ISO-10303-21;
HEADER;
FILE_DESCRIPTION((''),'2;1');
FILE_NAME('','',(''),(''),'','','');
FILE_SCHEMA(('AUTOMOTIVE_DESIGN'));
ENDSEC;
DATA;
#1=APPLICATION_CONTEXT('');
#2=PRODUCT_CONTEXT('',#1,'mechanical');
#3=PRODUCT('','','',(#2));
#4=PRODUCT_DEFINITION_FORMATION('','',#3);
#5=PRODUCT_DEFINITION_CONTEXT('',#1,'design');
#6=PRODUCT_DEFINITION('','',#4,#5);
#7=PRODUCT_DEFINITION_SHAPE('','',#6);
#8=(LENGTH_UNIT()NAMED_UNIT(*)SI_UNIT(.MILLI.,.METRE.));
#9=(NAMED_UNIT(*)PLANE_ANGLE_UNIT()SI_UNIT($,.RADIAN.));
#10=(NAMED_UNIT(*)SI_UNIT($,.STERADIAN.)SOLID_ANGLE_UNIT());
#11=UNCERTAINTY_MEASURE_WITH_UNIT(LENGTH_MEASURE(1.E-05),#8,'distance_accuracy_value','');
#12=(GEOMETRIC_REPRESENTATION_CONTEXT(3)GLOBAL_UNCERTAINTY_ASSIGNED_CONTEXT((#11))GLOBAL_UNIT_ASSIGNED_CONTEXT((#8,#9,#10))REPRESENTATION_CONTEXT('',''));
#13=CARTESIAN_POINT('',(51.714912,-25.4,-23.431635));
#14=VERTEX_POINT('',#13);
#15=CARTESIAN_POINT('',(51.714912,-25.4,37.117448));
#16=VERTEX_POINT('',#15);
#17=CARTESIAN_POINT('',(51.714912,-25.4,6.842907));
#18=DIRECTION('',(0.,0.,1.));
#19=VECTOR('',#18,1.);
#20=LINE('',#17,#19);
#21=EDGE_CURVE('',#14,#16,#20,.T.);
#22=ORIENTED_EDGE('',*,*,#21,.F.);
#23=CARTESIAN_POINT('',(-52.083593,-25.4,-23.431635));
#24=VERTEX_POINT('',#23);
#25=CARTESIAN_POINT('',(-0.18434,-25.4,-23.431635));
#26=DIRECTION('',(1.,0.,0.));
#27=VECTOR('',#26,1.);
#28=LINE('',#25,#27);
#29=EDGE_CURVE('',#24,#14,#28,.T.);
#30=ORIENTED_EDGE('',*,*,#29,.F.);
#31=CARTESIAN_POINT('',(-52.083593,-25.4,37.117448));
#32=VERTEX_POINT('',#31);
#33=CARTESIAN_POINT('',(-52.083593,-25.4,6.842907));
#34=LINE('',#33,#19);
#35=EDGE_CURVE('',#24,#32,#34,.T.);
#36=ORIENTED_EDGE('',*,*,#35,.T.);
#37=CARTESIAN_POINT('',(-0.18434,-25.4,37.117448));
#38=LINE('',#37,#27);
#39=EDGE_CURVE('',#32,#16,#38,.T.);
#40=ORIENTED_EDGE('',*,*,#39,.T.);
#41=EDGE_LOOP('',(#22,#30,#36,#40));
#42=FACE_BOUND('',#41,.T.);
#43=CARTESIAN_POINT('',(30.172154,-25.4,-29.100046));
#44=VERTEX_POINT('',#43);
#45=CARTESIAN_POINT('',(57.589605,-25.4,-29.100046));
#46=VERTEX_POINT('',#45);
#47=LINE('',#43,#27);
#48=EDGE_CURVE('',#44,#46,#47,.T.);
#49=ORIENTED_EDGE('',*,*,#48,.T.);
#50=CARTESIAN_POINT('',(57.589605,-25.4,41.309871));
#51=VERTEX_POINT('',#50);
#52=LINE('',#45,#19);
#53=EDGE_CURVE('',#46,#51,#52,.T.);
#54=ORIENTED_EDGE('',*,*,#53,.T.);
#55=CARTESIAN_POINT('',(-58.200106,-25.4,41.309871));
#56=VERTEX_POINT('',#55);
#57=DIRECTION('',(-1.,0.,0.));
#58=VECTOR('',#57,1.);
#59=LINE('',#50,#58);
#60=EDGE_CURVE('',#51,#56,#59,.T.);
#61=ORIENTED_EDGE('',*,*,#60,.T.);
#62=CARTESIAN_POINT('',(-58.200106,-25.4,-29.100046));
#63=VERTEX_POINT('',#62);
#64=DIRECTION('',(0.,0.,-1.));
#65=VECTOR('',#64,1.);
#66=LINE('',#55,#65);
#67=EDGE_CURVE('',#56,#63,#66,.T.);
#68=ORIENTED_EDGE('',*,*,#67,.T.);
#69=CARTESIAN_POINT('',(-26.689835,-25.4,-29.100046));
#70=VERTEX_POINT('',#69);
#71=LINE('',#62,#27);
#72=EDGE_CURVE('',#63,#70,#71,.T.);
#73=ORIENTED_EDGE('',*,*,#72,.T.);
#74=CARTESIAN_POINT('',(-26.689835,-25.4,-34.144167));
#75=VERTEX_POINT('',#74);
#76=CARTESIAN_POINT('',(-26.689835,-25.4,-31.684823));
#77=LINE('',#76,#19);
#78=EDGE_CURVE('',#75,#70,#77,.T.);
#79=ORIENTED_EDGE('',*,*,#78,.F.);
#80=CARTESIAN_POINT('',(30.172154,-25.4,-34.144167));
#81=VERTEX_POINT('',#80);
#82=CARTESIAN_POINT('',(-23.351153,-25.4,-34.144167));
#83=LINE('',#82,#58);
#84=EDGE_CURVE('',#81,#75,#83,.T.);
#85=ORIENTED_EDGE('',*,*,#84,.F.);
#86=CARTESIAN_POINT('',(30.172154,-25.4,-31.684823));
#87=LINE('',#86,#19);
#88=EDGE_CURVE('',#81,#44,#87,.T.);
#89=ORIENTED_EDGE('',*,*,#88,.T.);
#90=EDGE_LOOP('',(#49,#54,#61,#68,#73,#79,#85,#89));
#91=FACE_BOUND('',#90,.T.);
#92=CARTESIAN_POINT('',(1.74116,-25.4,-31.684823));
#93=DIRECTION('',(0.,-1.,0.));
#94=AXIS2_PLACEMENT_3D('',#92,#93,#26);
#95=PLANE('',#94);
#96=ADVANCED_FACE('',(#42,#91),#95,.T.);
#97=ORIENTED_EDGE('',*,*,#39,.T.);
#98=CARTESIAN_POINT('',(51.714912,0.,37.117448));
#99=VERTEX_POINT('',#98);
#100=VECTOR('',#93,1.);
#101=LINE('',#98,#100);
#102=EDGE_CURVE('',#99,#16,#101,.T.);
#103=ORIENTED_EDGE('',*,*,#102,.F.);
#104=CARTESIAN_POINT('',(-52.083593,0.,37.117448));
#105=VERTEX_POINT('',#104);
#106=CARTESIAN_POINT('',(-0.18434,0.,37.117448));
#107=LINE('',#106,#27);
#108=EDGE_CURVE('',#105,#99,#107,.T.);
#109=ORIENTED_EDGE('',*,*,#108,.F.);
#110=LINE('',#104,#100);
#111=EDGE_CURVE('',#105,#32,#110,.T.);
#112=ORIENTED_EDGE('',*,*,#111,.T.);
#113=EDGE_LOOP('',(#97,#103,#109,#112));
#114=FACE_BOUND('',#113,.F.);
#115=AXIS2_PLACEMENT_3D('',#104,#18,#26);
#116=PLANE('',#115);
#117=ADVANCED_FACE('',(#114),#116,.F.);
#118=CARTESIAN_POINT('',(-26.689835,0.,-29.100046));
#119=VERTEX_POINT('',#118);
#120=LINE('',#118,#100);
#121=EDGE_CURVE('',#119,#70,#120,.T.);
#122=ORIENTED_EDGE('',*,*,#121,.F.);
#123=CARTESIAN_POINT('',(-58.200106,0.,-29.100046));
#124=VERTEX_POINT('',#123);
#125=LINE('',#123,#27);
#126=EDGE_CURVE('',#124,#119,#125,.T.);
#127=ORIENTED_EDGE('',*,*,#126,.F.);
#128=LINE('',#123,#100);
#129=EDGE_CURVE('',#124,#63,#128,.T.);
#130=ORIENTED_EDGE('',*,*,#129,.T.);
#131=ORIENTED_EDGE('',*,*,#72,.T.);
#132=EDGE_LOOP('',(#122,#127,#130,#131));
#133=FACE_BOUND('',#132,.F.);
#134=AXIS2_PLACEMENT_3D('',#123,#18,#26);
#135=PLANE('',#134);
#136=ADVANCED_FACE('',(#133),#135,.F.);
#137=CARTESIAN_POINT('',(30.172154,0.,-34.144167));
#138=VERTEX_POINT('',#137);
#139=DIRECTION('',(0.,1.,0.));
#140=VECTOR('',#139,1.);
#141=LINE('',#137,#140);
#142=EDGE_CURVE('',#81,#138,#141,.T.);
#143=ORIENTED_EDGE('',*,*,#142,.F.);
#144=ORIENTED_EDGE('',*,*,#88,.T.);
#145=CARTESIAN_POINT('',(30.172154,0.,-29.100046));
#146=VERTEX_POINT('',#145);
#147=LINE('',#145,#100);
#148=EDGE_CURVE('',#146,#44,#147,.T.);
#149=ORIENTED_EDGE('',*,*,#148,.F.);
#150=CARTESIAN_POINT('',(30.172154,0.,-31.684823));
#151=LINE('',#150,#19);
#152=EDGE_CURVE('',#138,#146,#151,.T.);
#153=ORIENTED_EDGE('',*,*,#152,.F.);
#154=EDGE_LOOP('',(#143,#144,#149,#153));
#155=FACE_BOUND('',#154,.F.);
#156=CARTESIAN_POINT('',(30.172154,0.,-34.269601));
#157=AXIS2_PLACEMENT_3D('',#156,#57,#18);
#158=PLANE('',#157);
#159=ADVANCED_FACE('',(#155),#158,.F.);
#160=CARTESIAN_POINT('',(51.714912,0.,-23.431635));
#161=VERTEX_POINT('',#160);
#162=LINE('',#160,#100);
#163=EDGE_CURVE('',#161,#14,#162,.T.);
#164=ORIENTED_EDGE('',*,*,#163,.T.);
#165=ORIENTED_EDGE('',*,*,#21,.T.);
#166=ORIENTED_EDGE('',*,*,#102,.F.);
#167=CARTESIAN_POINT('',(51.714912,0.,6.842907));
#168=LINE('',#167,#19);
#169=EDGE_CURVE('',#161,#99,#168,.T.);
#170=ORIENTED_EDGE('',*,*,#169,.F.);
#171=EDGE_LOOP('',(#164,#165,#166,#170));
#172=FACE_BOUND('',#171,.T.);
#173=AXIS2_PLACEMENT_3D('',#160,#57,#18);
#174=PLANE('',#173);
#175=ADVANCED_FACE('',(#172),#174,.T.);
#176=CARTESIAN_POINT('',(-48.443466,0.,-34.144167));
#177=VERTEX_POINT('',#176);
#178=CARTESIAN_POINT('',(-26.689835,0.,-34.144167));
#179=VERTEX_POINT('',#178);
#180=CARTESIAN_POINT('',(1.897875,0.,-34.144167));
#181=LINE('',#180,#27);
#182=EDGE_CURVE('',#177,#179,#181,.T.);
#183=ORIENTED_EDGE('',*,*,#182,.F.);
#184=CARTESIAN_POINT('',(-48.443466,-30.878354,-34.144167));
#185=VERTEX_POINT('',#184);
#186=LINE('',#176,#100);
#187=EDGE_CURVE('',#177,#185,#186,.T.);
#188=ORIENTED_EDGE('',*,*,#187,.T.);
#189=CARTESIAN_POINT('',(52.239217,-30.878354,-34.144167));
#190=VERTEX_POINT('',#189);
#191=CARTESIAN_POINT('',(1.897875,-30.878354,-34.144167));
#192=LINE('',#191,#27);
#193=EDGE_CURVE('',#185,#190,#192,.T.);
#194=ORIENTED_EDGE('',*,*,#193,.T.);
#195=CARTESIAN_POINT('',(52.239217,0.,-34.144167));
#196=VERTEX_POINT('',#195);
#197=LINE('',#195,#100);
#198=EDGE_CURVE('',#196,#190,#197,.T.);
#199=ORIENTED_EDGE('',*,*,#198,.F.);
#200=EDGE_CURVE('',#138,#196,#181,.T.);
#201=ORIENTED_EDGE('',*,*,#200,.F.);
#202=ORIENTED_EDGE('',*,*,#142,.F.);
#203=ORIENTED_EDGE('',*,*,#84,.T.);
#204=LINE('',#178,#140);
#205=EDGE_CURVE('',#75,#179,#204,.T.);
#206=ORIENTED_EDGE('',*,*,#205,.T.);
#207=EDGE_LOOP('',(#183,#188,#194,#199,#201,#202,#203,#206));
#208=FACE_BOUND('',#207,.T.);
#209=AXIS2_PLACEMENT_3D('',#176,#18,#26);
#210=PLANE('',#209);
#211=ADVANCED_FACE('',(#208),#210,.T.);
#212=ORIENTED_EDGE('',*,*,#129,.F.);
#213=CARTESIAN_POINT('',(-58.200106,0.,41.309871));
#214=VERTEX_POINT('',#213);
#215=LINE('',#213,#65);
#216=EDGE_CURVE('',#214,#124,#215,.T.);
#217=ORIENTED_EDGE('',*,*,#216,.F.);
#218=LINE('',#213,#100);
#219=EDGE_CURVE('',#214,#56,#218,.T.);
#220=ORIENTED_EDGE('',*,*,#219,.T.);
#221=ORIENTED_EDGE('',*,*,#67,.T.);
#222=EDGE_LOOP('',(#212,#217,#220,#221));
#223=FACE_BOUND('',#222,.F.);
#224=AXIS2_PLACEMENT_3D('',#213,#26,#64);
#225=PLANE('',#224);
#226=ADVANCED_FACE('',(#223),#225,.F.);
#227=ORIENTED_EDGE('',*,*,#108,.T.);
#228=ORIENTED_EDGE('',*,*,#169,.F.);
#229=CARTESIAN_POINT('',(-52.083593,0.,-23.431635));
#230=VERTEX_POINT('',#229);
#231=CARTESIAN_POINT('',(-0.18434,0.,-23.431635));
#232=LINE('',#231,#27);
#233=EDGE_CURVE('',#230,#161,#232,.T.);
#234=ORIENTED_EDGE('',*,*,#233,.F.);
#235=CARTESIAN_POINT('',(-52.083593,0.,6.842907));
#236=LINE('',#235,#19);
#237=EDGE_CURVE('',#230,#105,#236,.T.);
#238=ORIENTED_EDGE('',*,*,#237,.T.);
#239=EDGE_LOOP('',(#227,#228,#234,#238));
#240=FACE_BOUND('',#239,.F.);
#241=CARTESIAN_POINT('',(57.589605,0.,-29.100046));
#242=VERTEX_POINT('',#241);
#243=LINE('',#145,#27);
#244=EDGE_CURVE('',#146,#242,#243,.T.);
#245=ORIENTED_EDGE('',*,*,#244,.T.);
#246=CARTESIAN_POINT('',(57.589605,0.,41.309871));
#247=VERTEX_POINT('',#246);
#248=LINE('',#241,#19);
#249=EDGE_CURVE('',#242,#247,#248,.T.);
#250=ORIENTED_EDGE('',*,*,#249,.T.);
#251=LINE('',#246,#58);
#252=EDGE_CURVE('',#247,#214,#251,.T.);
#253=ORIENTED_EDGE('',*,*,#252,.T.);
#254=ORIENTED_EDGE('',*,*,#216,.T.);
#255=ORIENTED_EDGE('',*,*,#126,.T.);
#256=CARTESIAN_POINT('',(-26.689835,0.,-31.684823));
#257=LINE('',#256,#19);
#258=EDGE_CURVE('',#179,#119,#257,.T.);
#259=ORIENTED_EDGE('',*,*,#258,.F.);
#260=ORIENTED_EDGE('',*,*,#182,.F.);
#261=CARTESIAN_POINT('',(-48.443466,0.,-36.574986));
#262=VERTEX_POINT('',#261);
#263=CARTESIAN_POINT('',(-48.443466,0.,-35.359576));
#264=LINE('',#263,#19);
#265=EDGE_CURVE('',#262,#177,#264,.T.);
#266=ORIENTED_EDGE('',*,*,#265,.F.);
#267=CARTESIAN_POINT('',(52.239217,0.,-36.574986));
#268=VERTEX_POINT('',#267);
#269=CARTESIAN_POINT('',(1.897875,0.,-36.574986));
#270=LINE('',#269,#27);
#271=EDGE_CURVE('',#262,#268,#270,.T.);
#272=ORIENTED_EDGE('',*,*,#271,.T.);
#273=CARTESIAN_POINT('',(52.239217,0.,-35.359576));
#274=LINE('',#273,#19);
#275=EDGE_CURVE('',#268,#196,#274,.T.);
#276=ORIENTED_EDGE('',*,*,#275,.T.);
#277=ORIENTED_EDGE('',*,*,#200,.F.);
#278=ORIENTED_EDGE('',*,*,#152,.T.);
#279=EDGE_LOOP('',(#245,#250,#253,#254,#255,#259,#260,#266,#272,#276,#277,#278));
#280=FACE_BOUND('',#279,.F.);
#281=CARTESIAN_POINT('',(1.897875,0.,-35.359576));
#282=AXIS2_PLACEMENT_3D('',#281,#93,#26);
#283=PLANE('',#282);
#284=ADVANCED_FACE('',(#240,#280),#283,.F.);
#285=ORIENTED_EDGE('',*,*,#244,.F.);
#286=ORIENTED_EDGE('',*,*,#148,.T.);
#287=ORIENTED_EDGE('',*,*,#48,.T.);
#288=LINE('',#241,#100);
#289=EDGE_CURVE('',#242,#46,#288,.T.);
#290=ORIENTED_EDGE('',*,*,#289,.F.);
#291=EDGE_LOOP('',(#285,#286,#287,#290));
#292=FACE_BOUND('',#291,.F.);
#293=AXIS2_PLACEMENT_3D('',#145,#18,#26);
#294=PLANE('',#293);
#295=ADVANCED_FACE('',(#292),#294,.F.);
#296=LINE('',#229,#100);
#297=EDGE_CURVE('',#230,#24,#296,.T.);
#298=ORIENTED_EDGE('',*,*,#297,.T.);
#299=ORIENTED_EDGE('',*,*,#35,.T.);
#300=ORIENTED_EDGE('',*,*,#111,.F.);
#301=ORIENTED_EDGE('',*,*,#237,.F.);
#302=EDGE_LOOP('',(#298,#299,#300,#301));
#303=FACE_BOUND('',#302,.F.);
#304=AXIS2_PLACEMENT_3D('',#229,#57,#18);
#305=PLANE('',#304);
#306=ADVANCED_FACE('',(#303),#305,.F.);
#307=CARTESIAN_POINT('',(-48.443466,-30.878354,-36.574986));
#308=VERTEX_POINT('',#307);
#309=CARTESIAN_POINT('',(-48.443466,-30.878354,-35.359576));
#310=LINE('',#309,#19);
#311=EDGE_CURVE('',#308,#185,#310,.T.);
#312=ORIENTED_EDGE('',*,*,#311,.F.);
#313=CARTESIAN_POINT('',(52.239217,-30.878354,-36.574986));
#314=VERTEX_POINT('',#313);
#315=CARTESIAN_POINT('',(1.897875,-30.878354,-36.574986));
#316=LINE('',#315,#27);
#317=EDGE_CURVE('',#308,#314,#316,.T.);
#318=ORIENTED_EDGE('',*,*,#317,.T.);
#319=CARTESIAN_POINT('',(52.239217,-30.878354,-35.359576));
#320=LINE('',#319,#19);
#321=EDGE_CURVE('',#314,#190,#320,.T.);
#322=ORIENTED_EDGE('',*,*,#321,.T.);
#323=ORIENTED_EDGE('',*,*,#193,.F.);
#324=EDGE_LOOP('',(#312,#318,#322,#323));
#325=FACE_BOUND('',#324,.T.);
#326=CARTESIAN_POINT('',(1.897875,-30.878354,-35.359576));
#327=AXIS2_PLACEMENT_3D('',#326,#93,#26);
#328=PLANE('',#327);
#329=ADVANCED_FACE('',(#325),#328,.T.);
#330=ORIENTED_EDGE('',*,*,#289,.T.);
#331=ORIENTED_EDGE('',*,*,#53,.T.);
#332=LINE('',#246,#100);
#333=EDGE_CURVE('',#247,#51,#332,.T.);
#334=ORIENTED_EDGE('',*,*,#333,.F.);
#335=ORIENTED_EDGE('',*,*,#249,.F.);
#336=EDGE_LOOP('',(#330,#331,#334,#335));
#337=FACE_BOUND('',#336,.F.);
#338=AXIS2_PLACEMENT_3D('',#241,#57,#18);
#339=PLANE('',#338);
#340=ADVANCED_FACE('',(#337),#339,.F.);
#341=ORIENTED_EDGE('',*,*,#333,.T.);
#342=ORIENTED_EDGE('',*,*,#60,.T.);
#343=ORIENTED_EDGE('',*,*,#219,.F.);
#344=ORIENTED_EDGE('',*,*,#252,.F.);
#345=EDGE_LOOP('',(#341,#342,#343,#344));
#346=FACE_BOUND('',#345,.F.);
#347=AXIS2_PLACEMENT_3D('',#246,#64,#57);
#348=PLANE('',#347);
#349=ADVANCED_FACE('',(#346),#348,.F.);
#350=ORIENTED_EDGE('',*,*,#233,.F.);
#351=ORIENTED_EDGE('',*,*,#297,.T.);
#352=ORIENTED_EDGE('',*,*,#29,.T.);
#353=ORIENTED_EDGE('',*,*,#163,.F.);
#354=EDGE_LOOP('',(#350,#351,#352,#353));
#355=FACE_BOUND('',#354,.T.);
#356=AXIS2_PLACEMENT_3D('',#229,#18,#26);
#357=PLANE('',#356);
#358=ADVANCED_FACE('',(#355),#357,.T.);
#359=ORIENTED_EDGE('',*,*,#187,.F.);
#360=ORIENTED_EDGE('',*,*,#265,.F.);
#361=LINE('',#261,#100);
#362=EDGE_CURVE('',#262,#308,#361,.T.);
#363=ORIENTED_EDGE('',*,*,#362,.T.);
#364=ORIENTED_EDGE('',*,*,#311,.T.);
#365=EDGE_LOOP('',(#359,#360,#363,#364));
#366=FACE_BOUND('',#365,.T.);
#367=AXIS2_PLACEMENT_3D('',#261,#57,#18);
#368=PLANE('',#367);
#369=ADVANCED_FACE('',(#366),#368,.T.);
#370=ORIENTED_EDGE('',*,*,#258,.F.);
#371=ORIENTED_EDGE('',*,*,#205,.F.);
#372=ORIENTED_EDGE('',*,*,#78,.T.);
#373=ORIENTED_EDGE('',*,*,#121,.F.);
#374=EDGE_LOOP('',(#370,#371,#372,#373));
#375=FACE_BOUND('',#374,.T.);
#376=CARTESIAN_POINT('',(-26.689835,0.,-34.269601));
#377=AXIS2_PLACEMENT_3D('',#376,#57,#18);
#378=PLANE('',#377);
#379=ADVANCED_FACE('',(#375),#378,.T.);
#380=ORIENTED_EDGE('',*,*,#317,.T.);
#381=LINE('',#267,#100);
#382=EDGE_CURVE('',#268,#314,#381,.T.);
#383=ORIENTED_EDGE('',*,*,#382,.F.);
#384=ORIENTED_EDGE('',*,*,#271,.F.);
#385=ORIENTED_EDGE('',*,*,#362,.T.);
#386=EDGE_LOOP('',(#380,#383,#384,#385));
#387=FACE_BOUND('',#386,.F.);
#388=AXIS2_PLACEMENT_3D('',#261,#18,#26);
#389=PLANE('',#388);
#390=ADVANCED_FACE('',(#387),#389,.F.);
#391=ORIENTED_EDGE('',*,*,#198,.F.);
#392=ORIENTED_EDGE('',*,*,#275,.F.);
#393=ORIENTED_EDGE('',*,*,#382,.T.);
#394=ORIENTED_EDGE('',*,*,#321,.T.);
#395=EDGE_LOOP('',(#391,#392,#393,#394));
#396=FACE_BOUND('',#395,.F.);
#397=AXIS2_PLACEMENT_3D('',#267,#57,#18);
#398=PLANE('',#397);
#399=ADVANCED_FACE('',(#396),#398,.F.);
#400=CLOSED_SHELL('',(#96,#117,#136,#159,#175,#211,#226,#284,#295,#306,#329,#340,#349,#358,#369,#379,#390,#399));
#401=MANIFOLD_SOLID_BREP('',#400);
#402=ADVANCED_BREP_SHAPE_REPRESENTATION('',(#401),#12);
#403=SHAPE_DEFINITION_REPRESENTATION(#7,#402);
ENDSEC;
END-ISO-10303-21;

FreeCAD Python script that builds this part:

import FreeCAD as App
import Part
import Sketcher
Q = App.Units.Quantity

doc = App.newDocument("Part")
body = doc.addObject("PartDesign::Body", "Body")

sketch1 = body.newObject("Sketcher::SketchObject", "Sketch")
sketch1.AttachmentSupport = (doc.getObject("XZ_Plane"), [""])
sketch1.MapMode = "FlatFace"
sketch1.addGeometry([
    Part.LineSegment(App.Vector(-27, -29, 0), App.Vector(-27, -34, 0)),
    Part.LineSegment(App.Vector(-27, -34, 0), App.Vector(30, -34, 0)),
    Part.LineSegment(App.Vector(30, -34, 0), App.Vector(30, -29, 0)),
    Part.LineSegment(App.Vector(30, -29, 0), App.Vector(58, -29, 0)),
    Part.LineSegment(App.Vector(58, -29, 0), App.Vector(58, 41, 0)),
    Part.LineSegment(App.Vector(58, 41, 0), App.Vector(-58, 41, 0)),
    Part.LineSegment(App.Vector(-58, 41, 0), App.Vector(-58, -29, 0)),
    Part.LineSegment(App.Vector(-58, -29, 0), App.Vector(-27, -29, 0)),
    Part.LineSegment(App.Vector(52, -23, 0), App.Vector(-52, -23, 0)),
    Part.LineSegment(App.Vector(-52, -23, 0), App.Vector(-52, 37, 0)),
    Part.LineSegment(App.Vector(-52, 37, 0), App.Vector(52, 37, 0)),
    Part.LineSegment(App.Vector(52, 37, 0), App.Vector(52, -23, 0)),
], False)
sketch1.addConstraint([
    Sketcher.Constraint("Coincident", 0, 2, 1, 1),
    Sketcher.Constraint("Coincident", 1, 2, 2, 1),
    Sketcher.Constraint("Coincident", 2, 2, 3, 1),
    Sketcher.Constraint("Coincident", 3, 2, 4, 1),
    Sketcher.Constraint("Coincident", 4, 2, 5, 1),
    Sketcher.Constraint("Coincident", 5, 2, 6, 1),
    Sketcher.Constraint("Coincident", 6, 2, 7, 1),
    Sketcher.Constraint("Coincident", 7, 2, 0, 1),
    Sketcher.Constraint("Coincident", 8, 2, 9, 1),
    Sketcher.Constraint("Coincident", 9, 2, 10, 1),
    Sketcher.Constraint("Coincident", 10, 2, 11, 1),
    Sketcher.Constraint("Coincident", 11, 2, 8, 1),
    Sketcher.Constraint("Vertical", 0),
    Sketcher.Constraint("Horizontal", 1),
    Sketcher.Constraint("Vertical", 2),
    Sketcher.Constraint("Horizontal", 3),
    Sketcher.Constraint("Vertical", 4),
    Sketcher.Constraint("Horizontal", 5),
    Sketcher.Constraint("Vertical", 6),
    Sketcher.Constraint("Horizontal", 7),
    Sketcher.Constraint("Horizontal", 8),
    Sketcher.Constraint("Vertical", 9),
    Sketcher.Constraint("Horizontal", 10),
    Sketcher.Constraint("Vertical", 11),
    Sketcher.Constraint("Horizontal", 3, 2, 6, 2),
    Sketcher.Constraint("DistanceX", 1, 1, 1, 2, Q("56.861989 mm")),
    Sketcher.Constraint("DistanceX", 3, 1, 3, 2, Q("27.417451 mm")),
    Sketcher.Constraint("DistanceX", 5, 2, 5, 1, Q("115.789711 mm")),
    Sketcher.Constraint("DistanceY", 0, 2, -1, 1, Q("34.269601 mm")),
    Sketcher.Constraint("DistanceX", 8, 2, 8, 1, Q("103.798505 mm")),
    Sketcher.Constraint("DistanceY", 0, 2, 0, 1, Q("5.169556 mm")),
    Sketcher.Constraint("DistanceY", 4, 1, 4, 2, Q("70.409916 mm")),
    Sketcher.Constraint("DistanceY", 9, 1, 9, 2, Q("60.549082 mm")),
    Sketcher.Constraint("DistanceY", 6, 2, 8, 2, Q("5.668411 mm")),
    Sketcher.Constraint("DistanceX", 0, 2, -1, 1, Q("26.689835 mm")),
    Sketcher.Constraint("DistanceX", 8, 2, -1, 1, Q("52.083593 mm")),
])
pad1 = body.newObject("PartDesign::Pad", "Pad")
pad1.Profile = sketch1
pad1.Length = Q("1 in")

sketch2 = body.newObject("Sketcher::SketchObject", "Sketch001")
sketch2.AttachmentSupport = (doc.getObject("XZ_Plane"), [""])
sketch2.MapMode = "FlatFace"
sketch2.addGeometry([
    Part.LineSegment(App.Vector(-48.4, -34.1, 0), App.Vector(-48.4, -36.6, 0)),
    Part.LineSegment(App.Vector(-48.4, -36.6, 0), App.Vector(52.2, -36.6, 0)),
    Part.LineSegment(App.Vector(52.2, -36.6, 0), App.Vector(52.2, -34.1, 0)),
    Part.LineSegment(App.Vector(52.2, -34.1, 0), App.Vector(-48.4, -34.1, 0)),
], False)
sketch2.addConstraint([
    Sketcher.Constraint("Coincident", 0, 2, 1, 1),
    Sketcher.Constraint("Coincident", 1, 2, 2, 1),
    Sketcher.Constraint("Coincident", 2, 2, 3, 1),
    Sketcher.Constraint("Coincident", 3, 2, 0, 1),
    Sketcher.Constraint("Vertical", 0),
    Sketcher.Constraint("Horizontal", 1),
    Sketcher.Constraint("Vertical", 2),
    Sketcher.Constraint("Horizontal", 3),
    Sketcher.Constraint("DistanceY", 0, 2, 0, 1, Q("2.430819 mm")),
    Sketcher.Constraint("DistanceX", 1, 1, 1, 2, Q("100.682683 mm")),
    Sketcher.Constraint("DistanceX", 0, 2, -1, 1, Q("48.443466 mm")),
    Sketcher.Constraint("DistanceY", 0, 2, -1, 1, Q("36.574986 mm")),
])
pad2 = body.newObject("PartDesign::Pad", "Pad001")
pad2.Profile = sketch2
pad2.Length = 30.878354

doc.recompute()
